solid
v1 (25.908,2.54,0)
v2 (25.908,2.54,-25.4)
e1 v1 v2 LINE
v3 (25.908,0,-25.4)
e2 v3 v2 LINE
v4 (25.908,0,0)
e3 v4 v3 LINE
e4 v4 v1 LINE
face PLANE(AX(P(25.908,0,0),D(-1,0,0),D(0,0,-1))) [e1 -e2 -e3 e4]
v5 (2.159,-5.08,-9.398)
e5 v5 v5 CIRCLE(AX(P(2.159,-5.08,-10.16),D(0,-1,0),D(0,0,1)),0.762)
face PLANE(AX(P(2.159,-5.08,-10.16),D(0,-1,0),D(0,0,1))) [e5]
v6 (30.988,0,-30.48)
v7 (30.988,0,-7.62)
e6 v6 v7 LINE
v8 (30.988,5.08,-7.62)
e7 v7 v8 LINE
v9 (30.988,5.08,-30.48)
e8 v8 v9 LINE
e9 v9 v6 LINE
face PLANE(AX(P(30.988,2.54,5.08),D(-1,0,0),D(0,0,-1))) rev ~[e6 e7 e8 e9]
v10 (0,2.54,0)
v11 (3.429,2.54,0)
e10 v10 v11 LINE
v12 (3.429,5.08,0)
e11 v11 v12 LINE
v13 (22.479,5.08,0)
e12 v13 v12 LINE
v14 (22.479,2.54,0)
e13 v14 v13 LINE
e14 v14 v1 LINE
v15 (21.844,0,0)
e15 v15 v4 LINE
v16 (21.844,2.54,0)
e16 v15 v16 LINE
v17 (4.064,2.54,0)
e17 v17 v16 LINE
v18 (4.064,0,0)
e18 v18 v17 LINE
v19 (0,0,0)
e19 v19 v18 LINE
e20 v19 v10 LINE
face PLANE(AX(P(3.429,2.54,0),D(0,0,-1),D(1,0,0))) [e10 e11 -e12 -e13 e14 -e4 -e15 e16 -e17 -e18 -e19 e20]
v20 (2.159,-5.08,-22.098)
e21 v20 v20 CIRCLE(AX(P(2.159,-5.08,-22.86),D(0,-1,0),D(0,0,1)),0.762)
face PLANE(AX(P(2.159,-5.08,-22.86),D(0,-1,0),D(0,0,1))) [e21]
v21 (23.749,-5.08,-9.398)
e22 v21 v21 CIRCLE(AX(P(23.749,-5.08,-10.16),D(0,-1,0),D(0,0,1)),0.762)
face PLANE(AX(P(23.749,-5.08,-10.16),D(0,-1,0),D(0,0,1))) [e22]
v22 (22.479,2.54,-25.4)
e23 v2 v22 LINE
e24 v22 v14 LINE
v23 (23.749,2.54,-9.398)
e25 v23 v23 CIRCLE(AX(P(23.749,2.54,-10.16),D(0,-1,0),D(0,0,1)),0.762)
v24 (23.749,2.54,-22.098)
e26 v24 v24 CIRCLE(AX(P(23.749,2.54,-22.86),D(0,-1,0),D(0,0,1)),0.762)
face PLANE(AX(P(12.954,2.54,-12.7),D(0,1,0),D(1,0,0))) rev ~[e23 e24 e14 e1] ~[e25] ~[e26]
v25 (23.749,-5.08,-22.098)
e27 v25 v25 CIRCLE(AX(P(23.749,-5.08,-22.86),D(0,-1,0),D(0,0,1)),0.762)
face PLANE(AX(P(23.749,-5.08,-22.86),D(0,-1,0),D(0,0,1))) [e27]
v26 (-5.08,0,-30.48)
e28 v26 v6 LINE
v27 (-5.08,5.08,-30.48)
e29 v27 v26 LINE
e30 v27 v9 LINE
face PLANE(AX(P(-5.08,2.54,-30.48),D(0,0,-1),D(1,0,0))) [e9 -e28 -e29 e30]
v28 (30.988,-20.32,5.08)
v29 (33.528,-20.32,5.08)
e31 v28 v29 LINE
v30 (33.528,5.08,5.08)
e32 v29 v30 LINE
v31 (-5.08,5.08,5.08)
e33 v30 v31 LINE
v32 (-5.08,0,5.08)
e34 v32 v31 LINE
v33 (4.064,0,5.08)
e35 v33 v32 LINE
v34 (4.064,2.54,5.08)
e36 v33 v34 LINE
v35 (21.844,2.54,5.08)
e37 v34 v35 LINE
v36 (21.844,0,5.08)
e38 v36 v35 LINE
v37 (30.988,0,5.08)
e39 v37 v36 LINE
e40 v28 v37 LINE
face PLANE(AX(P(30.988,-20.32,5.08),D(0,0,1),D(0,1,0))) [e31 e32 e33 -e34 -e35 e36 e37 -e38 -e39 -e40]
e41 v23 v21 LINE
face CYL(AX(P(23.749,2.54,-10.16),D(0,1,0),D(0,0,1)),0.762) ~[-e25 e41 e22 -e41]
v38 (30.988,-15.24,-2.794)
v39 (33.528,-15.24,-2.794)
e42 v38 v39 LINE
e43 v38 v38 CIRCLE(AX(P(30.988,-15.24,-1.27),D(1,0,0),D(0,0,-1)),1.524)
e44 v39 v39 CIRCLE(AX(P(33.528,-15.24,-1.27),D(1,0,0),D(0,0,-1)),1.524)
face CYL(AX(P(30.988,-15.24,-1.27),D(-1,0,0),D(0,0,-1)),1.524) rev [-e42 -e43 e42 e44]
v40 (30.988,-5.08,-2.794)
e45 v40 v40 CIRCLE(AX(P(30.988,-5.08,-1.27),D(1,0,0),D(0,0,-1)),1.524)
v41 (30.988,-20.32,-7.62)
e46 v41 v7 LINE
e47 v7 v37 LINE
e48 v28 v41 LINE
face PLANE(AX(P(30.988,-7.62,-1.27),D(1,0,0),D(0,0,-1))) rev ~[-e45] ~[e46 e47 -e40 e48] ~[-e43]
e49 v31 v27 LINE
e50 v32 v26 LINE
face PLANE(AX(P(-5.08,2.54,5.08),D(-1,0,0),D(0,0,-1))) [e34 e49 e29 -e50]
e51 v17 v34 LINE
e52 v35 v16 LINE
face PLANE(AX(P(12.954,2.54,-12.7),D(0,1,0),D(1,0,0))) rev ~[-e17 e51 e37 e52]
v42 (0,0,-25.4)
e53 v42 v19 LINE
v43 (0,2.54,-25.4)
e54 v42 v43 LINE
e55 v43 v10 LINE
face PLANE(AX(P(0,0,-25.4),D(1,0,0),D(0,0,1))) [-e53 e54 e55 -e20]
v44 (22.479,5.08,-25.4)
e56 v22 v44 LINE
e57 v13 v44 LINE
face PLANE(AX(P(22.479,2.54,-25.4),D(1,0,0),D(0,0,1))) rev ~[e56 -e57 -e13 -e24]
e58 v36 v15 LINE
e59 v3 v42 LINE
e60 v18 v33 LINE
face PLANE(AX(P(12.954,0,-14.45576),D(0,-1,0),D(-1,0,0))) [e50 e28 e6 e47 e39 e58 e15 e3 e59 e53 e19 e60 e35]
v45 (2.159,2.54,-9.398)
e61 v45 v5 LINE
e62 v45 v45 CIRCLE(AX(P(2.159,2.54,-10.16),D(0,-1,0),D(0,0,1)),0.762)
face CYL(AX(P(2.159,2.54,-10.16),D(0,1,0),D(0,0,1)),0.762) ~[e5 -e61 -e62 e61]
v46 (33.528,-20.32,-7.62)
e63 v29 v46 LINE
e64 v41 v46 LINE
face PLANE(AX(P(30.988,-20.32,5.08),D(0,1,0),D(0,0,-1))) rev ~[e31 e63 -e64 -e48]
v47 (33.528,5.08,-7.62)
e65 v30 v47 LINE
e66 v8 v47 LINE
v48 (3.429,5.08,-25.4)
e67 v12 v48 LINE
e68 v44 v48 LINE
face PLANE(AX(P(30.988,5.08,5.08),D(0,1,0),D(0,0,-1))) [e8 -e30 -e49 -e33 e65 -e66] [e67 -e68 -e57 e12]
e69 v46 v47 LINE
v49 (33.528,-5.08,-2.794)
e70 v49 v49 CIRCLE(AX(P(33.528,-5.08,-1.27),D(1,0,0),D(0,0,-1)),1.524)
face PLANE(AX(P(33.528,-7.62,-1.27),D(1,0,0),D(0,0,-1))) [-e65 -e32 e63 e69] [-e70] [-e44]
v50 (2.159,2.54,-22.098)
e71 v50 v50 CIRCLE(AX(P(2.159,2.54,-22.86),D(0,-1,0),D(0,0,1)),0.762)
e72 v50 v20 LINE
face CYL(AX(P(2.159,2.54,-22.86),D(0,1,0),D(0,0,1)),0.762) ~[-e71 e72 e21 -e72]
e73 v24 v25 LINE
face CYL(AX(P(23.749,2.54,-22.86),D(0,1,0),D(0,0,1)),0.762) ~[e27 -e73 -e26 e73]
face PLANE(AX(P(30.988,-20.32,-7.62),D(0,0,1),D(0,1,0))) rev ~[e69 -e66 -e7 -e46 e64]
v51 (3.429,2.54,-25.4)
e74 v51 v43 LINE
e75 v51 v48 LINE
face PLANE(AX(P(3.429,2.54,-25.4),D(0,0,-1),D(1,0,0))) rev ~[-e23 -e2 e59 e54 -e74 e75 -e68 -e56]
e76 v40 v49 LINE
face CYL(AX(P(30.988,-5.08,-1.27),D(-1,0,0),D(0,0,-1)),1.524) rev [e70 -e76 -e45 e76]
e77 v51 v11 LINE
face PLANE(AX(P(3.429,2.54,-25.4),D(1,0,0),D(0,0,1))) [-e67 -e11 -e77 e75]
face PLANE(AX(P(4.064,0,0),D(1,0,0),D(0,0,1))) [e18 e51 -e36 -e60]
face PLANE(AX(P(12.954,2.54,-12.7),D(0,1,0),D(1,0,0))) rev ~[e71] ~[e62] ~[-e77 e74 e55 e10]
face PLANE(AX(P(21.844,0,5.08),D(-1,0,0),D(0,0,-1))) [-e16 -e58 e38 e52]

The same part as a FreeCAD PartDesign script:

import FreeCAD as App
import Part
import Sketcher
Q = App.Units.Quantity

doc = App.newDocument("Part")
body = doc.addObject("PartDesign::Body", "Body")

sketch1 = body.newObject("Sketcher::SketchObject", "Sketch")
sketch1.AttachmentSupport = (doc.getObject("XZ_Plane"), [""])
sketch1.MapMode = "FlatFace"
sketch1.addGeometry(Part.LineSegment(App.Vector(31, -30.5, 0), App.Vector(-5.1, -30.5, 0)), False)
sketch1.addGeometry(Part.LineSegment(App.Vector(-5.1, -30.5, 0), App.Vector(-5.1, 5.1, 0)), False)
sketch1.addGeometry(Part.LineSegment(App.Vector(-5.1, 5.1, 0), App.Vector(4.1, 5.1, 0)), False)
sketch1.addGeometry(Part.LineSegment(App.Vector(4.1, 5.1, 0), App.Vector(4.1, 0, 0)), False)
sketch1.addGeometry(Part.LineSegment(App.Vector(4.1, 0, 0), App.Vector(0, 0, 0)), False)
sketch1.addGeometry(Part.LineSegment(App.Vector(0, 0, 0), App.Vector(0, -25.4, 0)), False)
sketch1.addGeometry(Part.LineSegment(App.Vector(0, -25.4, 0), App.Vector(25.9, -25.4, 0)), False)
sketch1.addGeometry(Part.LineSegment(App.Vector(25.9, -25.4, 0), App.Vector(25.9, 0, 0)), False)
sketch1.addGeometry(Part.LineSegment(App.Vector(25.9, 0, 0), App.Vector(21.8, 0, 0)), False)
sketch1.addGeometry(Part.LineSegment(App.Vector(21.8, 0, 0), App.Vector(21.8, 5.1, 0)), False)
sketch1.addGeometry(Part.LineSegment(App.Vector(21.8, 5.1, 0), App.Vector(31, 5.1, 0)), False)
sketch1.addGeometry(Part.LineSegment(App.Vector(31, 5.1, 0), App.Vector(31, -30.5, 0)), False)
sketch1.addConstraint(Sketcher.Constraint("Coincident", 0, 2, 1, 1))
sketch1.addConstraint(Sketcher.Constraint("Coincident", 1, 2, 2, 1))
sketch1.addConstraint(Sketcher.Constraint("Coincident", 2, 2, 3, 1))
sketch1.addConstraint(Sketcher.Constraint("Coincident", 3, 2, 4, 1))
sketch1.addConstraint(Sketcher.Constraint("Coincident", 4, 2, 5, 1))
sketch1.addConstraint(Sketcher.Constraint("Coincident", 5, 2, 6, 1))
sketch1.addConstraint(Sketcher.Constraint("Coincident", 6, 2, 7, 1))
sketch1.addConstraint(Sketcher.Constraint("Coincident", 7, 2, 8, 1))
sketch1.addConstraint(Sketcher.Constraint("Coincident", 8, 2, 9, 1))
sketch1.addConstraint(Sketcher.Constraint("Coincident", 9, 2, 10, 1))
sketch1.addConstraint(Sketcher.Constraint("Coincident", 10, 2, 11, 1))
sketch1.addConstraint(Sketcher.Constraint("Coincident", 11, 2, 0, 1))
sketch1.addConstraint(Sketcher.Constraint("Horizontal", 0))
sketch1.addConstraint(Sketcher.Constraint("Vertical", 1))
sketch1.addConstraint(Sketcher.Constraint("Horizontal", 2))
sketch1.addConstraint(Sketcher.Constraint("Vertical", 3))
sketch1.addConstraint(Sketcher.Constraint("Horizontal", 4))
sketch1.addConstraint(Sketcher.Constraint("Vertical", 5))
sketch1.addConstraint(Sketcher.Constraint("Horizontal", 6))
sketch1.addConstraint(Sketcher.Constraint("Vertical", 7))
sketch1.addConstraint(Sketcher.Constraint("Horizontal", 8))
sketch1.addConstraint(Sketcher.Constraint("Vertical", 9))
sketch1.addConstraint(Sketcher.Constraint("Horizontal", 10))
sketch1.addConstraint(Sketcher.Constraint("Vertical", 11))
sketch1.addConstraint(Sketcher.Constraint("Coincident", 4, 2, -1, 1))
sketch1.addConstraint(Sketcher.Constraint("PointOnObject", 7, 2, -1))
sketch1.addConstraint(Sketcher.Constraint("Horizontal", 2, 2, 9, 2))
sketch1.addConstraint(Sketcher.Constraint("Equal", 4, 8))
sketch1.addConstraint(Sketcher.Constraint("Equal", 2, 10))
sketch1.addConstraint(Sketcher.Constraint("DistanceY", 5, 2, 5, 1, Q("1 in")))
sketch1.addConstraint(Sketcher.Constraint("DistanceY", 1, 1, 1, 2, Q("1.4 in")))
sketch1.addConstraint(Sketcher.Constraint("DistanceY", 3, 2, 3, 1, Q("0.2 in")))
sketch1.addConstraint(Sketcher.Constraint("DistanceX", 0, 2, 0, 1, Q("1.42 in")))
sketch1.addConstraint(Sketcher.Constraint("DistanceX", 2, 1, 2, 2, Q("0.36 in")))
sketch1.addConstraint(Sketcher.Constraint("DistanceX", 4, 2, 4, 1, Q("0.16 in")))
pad1 = body.newObject("PartDesign::Pad", "Pad")
pad1.Profile = sketch1
pad1.Length = Q("0.1 in")
pad1.Reversed = True

sketch2 = body.newObject("Sketcher::SketchObject", "Sketch001")
sketch2.AttachmentSupport = (doc.getObject("XZ_Plane"), [""])
sketch2.MapMode = "FlatFace"
sketch2.AttachmentOffset = App.Placement(App.Vector(0, 0, -0.1 * 25.4), App.Rotation())
sketch2.addGeometry(Part.LineSegment(App.Vector(-5, -30, 0), App.Vector(-5, 5, 0)), False)
sketch2.addGeometry(Part.LineSegment(App.Vector(-5, 5, 0), App.Vector(31, 5, 0)), False)
sketch2.addGeometry(Part.LineSegment(App.Vector(31, 5, 0), App.Vector(31, -30, 0)), False)
sketch2.addGeometry(Part.LineSegment(App.Vector(31, -30, 0), App.Vector(-5, -30, 0)), False)
sketch2.addConstraint(Sketcher.Constraint("Coincident", 0, 2, 1, 1))
sketch2.addConstraint(Sketcher.Constraint("Coincident", 1, 2, 2, 1))
sketch2.addConstraint(Sketcher.Constraint("Coincident", 2, 2, 3, 1))
sketch2.addConstraint(Sketcher.Constraint("Coincident", 3, 2, 0, 1))
sketch2.addConstraint(Sketcher.Constraint("Vertical", 0))
sketch2.addConstraint(Sketcher.Constraint("Horizontal", 1))
sketch2.addConstraint(Sketcher.Constraint("Vertical", 2))
sketch2.addConstraint(Sketcher.Constraint("Horizontal", 3))
sketch2.addConstraint(Sketcher.Constraint("DistanceY", 0, 1, 0, 2, Q("1.4 in")))
sketch2.addConstraint(Sketcher.Constraint("DistanceX", 1, 1, 1, 2, Q("1.42 in")))
sketch2.addConstraint(Sketcher.Constraint("DistanceX", 0, 2, -1, 1, Q("0.2 in")))
sketch2.addConstraint(Sketcher.Constraint("DistanceY", -1, 1, 0, 2, Q("0.2 in")))
pad2 = body.newObject("PartDesign::Pad", "Pad001")
pad2.Profile = sketch2
pad2.Length = Q("0.1 in")
pad2.Reversed = True

sketch3 = body.newObject("Sketcher::SketchObject", "Sketch002")
sketch3.AttachmentSupport = (doc.getObject("XZ_Plane"), [""])
sketch3.MapMode = "FlatFace"
sketch3.AttachmentOffset = App.Placement(App.Vector(0, 0, -0.1 * 25.4), App.Rotation())
sketch3.addGeometry(Part.LineSegment(App.Vector(3, 0, 0), App.Vector(3, -25, 0)), False)
sketch3.addGeometry(Part.LineSegment(App.Vector(3, -25, 0), App.Vector(22, -25, 0)), False)
sketch3.addGeometry(Part.LineSegment(App.Vector(22, -25, 0), App.Vector(22, 0, 0)), False)
sketch3.addGeometry(Part.LineSegment(App.Vector(22, 0, 0), App.Vector(3, 0, 0)), False)
sketch3.addConstraint(Sketcher.Constraint("Coincident", 0, 2, 1, 1))
sketch3.addConstraint(Sketcher.Constraint("Coincident", 1, 2, 2, 1))
sketch3.addConstraint(Sketcher.Constraint("Coincident", 2, 2, 3, 1))
sketch3.addConstraint(Sketcher.Constraint("Coincident", 3, 2, 0, 1))
sketch3.addConstraint(Sketcher.Constraint("Vertical", 0))
sketch3.addConstraint(Sketcher.Constraint("Horizontal", 1))
sketch3.addConstraint(Sketcher.Constraint("Vertical", 2))
sketch3.addConstraint(Sketcher.Constraint("Horizontal", 3))
sketch3.addConstraint(Sketcher.Constraint("PointOnObject", 2, 2, -1))
sketch3.addConstraint(Sketcher.Constraint("DistanceY", 0, 2, 0, 1, Q("1 in")))
sketch3.addConstraint(Sketcher.Constraint("DistanceX", 1, 1, 1, 2, Q("0.75 in")))
sketch3.addConstraint(Sketcher.Constraint("DistanceX", -1, 1, 0, 2, Q("0.135 in")))
pocket1 = body.newObject("PartDesign::Pocket", "Pocket")
pocket1.Profile = sketch3
pocket1.Type = "ThroughAll"

sketch4 = body.newObject("Sketcher::SketchObject", "Sketch003")
sketch4.AttachmentSupport = (doc.getObject("XZ_Plane"), [""])
sketch4.MapMode = "FlatFace"
sketch4.AttachmentOffset = App.Placement(App.Vector(0, 0, -0.1 * 25.4), App.Rotation())
sketch4.addGeometry(Part.Circle(App.Vector(2.2, -10.2, 0), App.Vector(0, 0, 1), 0.8), False)
sketch4.addGeometry(Part.Circle(App.Vector(2.2, -22.9, 0), App.Vector(0, 0, 1), 0.8), False)
sketch4.addGeometry(Part.Circle(App.Vector(23.7, -10.2, 0), App.Vector(0, 0, 1), 0.8), False)
sketch4.addGeometry(Part.Circle(App.Vector(23.7, -22.9, 0), App.Vector(0, 0, 1), 0.8), False)
sketch4.addConstraint(Sketcher.Constraint("Equal", 0, 1))
sketch4.addConstraint(Sketcher.Constraint("Equal", 1, 2))
sketch4.addConstraint(Sketcher.Constraint("Equal", 2, 3))
sketch4.addConstraint(Sketcher.Constraint("Horizontal", 0, 3, 2, 3))
sketch4.addConstraint(Sketcher.Constraint("Horizontal", 1, 3, 3, 3))
sketch4.addConstraint(Sketcher.Constraint("Vertical", 0, 3, 1, 3))
sketch4.addConstraint(Sketcher.Constraint("Vertical", 2, 3, 3, 3))
sketch4.addConstraint(Sketcher.Constraint("Diameter", 0, Q("0.06 in")))
sketch4.addConstraint(Sketcher.Constraint("DistanceY", 0, 3, -1, 1, Q("0.4 in")))
sketch4.addConstraint(Sketcher.Constraint("DistanceY", 1, 3, -1, 1, Q("0.9 in")))
sketch4.addConstraint(Sketcher.Constraint("DistanceX", 0, 3, 2, 3, Q("0.85 in")))
sketch4.addConstraint(Sketcher.Constraint("DistanceX", -1, 1, 0, 3, Q("0.085 in")))
pad3 = body.newObject("PartDesign::Pad", "Pad002")
pad3.Profile = sketch4
pad3.Length = Q("0.3 in")

sketch5 = body.newObject("Sketcher::SketchObject", "Sketch004")
sketch5.AttachmentSupport = (doc.getObject("YZ_Plane"), [""])
sketch5.MapMode = "FlatFace"
sketch5.AttachmentOffset = App.Placement(App.Vector(0, 0, 1.22 * 25.4), App.Rotation())
sketch5.addGeometry(Part.LineSegment(App.Vector(5.1, 5.1, 0), App.Vector(-20.3, 5.1, 0)), False)
sketch5.addGeometry(Part.LineSegment(App.Vector(-20.3, 5.1, 0), App.Vector(-20.3, -7.6, 0)), False)
sketch5.addGeometry(Part.LineSegment(App.Vector(-20.3, -7.6, 0), App.Vector(5.1, -7.6, 0)), False)
sketch5.addGeometry(Part.LineSegment(App.Vector(5.1, -7.6, 0), App.Vector(5.1, 5.1, 0)), False)
sketch5.addGeometry(Part.Circle(App.Vector(-15.2, -1.3, 0), App.Vector(0, 0, 1), 1.5), False)
sketch5.addGeometry(Part.Circle(App.Vector(-5.1, -1.3, 0), App.Vector(0, 0, 1), 1.5), False)
sketch5.addConstraint(Sketcher.Constraint("Coincident", 0, 2, 1, 1))
sketch5.addConstraint(Sketcher.Constraint("Coincident", 1, 2, 2, 1))
sketch5.addConstraint(Sketcher.Constraint("Coincident", 2, 2, 3, 1))
sketch5.addConstraint(Sketcher.Constraint("Coincident", 3, 2, 0, 1))
sketch5.addConstraint(Sketcher.Constraint("Horizontal", 0))
sketch5.addConstraint(Sketcher.Constraint("Vertical", 1))
sketch5.addConstraint(Sketcher.Constraint("Horizontal", 2))
sketch5.addConstraint(Sketcher.Constraint("Vertical", 3))
sketch5.addConstraint(Sketcher.Constraint("Equal", 4, 5))
sketch5.addConstraint(Sketcher.Constraint("Horizontal", 4, 3, 5, 3))
sketch5.addConstraint(Sketcher.Constraint("Diameter", 4, Q("0.12 in")))
sketch5.addConstraint(Sketcher.Constraint("DistanceX", 0, 2, 0, 1, Q("1 in")))
sketch5.addConstraint(Sketcher.Constraint("DistanceY", 1, 2, 1, 1, Q("0.5 in")))
sketch5.addConstraint(Sketcher.Constraint("DistanceX", 4, 3, -1, 1, Q("0.6 in")))
sketch5.addConstraint(Sketcher.Constraint("DistanceX", 5, 3, -1, 1, Q("0.2 in")))
sketch5.addConstraint(Sketcher.Constraint("DistanceX", 0, 2, -1, 1, Q("0.8 in")))
sketch5.addConstraint(Sketcher.Constraint("DistanceY", -1, 1, 0, 2, Q("0.2 in")))
sketch5.addConstraint(Sketcher.Constraint("DistanceY", 4, 3, -1, 1, Q("0.05 in")))
pad4 = body.newObject("PartDesign::Pad", "Pad003")
pad4.Profile = sketch5
pad4.Length = Q("0.1 in")

doc.recompute()
